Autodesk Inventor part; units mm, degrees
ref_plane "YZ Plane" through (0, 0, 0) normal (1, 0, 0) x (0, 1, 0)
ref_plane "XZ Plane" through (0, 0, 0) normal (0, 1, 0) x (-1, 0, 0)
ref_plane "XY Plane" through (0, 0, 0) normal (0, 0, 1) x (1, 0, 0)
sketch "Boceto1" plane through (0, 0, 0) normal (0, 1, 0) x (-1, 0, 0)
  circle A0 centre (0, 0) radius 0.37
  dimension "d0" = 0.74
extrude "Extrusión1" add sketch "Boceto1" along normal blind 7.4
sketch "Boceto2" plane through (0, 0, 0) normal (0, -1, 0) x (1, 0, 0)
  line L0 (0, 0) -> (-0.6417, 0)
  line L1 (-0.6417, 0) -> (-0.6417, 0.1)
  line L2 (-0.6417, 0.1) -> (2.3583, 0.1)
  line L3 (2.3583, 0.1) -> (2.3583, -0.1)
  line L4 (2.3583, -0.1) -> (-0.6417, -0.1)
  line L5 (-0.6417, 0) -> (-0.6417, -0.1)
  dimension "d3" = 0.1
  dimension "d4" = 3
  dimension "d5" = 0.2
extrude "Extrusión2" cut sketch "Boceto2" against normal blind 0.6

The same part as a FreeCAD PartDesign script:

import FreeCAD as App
import Part
import Sketcher
Q = App.Units.Quantity

doc = App.newDocument("Part")
body = doc.addObject("PartDesign::Body", "Body")

# Sketch on XZ plane
sketch1 = body.newObject("Sketcher::SketchObject", "Sketch")
sketch1.AttachmentSupport = (doc.getObject("XZ_Plane"), [""])
sketch1.MapMode = "FlatFace"
sketch1.addGeometry(Part.Circle(App.Vector(0, 0, 0), App.Vector(0, 0, 1), 0.37), False)
sketch1.addConstraint([
    Sketcher.Constraint("Coincident", 0, 3, -1, 1),
    Sketcher.Constraint("Diameter", 0, Q("0.74 mm")),
])
pad1 = body.newObject("PartDesign::Pad", "Pad")
pad1.Profile = sketch1
pad1.Length = 7.4
pad1.Reversed = True

# Sketch on XZ plane
sketch2 = body.newObject("Sketcher::SketchObject", "Sketch001")
sketch2.AttachmentSupport = (doc.getObject("XZ_Plane"), [""])
sketch2.MapMode = "FlatFace"
sketch2.addGeometry([
    Part.LineSegment(App.Vector(-0.64, 0.1, 0), App.Vector(-0.64, -0.1, 0)),
    Part.LineSegment(App.Vector(-0.64, -0.1, 0), App.Vector(2.36, -0.1, 0)),
    Part.LineSegment(App.Vector(2.36, -0.1, 0), App.Vector(2.36, 0.1, 0)),
    Part.LineSegment(App.Vector(2.36, 0.1, 0), App.Vector(-0.64, 0.1, 0)),
], False)
sketch2.addConstraint([
    Sketcher.Constraint("Coincident", 0, 2, 1, 1),
    Sketcher.Constraint("Coincident", 1, 2, 2, 1),
    Sketcher.Constraint("Coincident", 2, 2, 3, 1),
    Sketcher.Constraint("Coincident", 3, 2, 0, 1),
    Sketcher.Constraint("Vertical", 0),
    Sketcher.Constraint("Horizontal", 1),
    Sketcher.Constraint("Vertical", 2),
    Sketcher.Constraint("Horizontal", 3),
    Sketcher.Constraint("DistanceX", 1, 1, 1, 2, Q("3 mm")),
    Sketcher.Constraint("DistanceY", 0, 2, 0, 1, Q("0.2 mm")),
    Sketcher.Constraint("DistanceY", 0, 2, -1, 1, Q("0.1 mm")),
    Sketcher.Constraint("DistanceX", 0, 2, -1, 1, Q("0.6417 mm")),
])
pocket1 = body.newObject("PartDesign::Pocket", "Pocket")
pocket1.Profile = sketch2
pocket1.Length = 0.6

doc.recompute()
